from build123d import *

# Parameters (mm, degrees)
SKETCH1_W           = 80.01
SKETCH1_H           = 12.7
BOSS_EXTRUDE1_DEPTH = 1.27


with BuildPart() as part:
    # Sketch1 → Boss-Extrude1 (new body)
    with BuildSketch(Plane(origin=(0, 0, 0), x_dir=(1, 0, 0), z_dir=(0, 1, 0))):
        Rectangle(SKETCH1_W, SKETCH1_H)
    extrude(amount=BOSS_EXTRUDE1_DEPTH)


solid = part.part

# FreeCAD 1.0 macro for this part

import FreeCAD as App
import Part
import Sketcher

V = App.Vector
Q = App.Units.Quantity


def add_polygon(sketch, points):
    """Adds a closed chain of lines whose ends are joined by coincident constraints."""
    first, n = sketch.GeometryCount, len(points)
    for a, b in zip(points, points[1:] + points[:1]):
        sketch.addGeometry(Part.LineSegment(App.Vector(*a, 0), App.Vector(*b, 0)), False)
    for i in range(n):
        sketch.addConstraint(Sketcher.Constraint("Coincident", first + i, 2, first + (i + 1) % n, 1))

doc = App.newDocument("Part")
params = doc.addObject("Spreadsheet::Sheet", "Params")
for row, (alias, value) in enumerate([
    ("sketch1_height", "0.5 in"),
    ("sketch1_width", "3.15 in"),
    ("pad1_length", "0.05 in"),
], start=1):
    params.set(f"A{row}", alias)
    params.set(f"B{row}", "=" + value)
    params.setAlias(f"B{row}", alias)

body = doc.addObject("PartDesign::Body", "Body")

sketch1 = doc.addObject("Sketcher::SketchObject", "Sketch")
body.addObject(sketch1)
sketch1.AttachmentSupport = (doc.XZ_Plane, [""])
sketch1.MapMode = "FlatFace"
add_polygon(sketch1, [(-40, -6), (-40, 6), (40, 6), (40, -6)])
sketch1.addConstraint(Sketcher.Constraint("Vertical", 0))
sketch1.addConstraint(Sketcher.Constraint("Horizontal", 1))
sketch1.addConstraint(Sketcher.Constraint("Vertical", 2))
sketch1.addConstraint(Sketcher.Constraint("Horizontal", 3))
sketch1.addConstraint(Sketcher.Constraint("Symmetric", 0, 2, 2, 2, -1, 1))
sketch1.addConstraint(Sketcher.Constraint("DistanceY", 0, 1, 0, 2, Q("0.5 in")))
sketch1.addConstraint(Sketcher.Constraint("DistanceX", 1, 1, 1, 2, Q("3.15 in")))
sketch1.setExpression("Constraints[9]", "Params.sketch1_height")
sketch1.setExpression("Constraints[10]", "Params.sketch1_width")
pad1 = doc.addObject("PartDesign::Pad", "Pad")
body.addObject(pad1)
pad1.Profile = sketch1
pad1.setExpression("Length", "Params.pad1_length")
pad1.Reversed = True

doc.recompute()
